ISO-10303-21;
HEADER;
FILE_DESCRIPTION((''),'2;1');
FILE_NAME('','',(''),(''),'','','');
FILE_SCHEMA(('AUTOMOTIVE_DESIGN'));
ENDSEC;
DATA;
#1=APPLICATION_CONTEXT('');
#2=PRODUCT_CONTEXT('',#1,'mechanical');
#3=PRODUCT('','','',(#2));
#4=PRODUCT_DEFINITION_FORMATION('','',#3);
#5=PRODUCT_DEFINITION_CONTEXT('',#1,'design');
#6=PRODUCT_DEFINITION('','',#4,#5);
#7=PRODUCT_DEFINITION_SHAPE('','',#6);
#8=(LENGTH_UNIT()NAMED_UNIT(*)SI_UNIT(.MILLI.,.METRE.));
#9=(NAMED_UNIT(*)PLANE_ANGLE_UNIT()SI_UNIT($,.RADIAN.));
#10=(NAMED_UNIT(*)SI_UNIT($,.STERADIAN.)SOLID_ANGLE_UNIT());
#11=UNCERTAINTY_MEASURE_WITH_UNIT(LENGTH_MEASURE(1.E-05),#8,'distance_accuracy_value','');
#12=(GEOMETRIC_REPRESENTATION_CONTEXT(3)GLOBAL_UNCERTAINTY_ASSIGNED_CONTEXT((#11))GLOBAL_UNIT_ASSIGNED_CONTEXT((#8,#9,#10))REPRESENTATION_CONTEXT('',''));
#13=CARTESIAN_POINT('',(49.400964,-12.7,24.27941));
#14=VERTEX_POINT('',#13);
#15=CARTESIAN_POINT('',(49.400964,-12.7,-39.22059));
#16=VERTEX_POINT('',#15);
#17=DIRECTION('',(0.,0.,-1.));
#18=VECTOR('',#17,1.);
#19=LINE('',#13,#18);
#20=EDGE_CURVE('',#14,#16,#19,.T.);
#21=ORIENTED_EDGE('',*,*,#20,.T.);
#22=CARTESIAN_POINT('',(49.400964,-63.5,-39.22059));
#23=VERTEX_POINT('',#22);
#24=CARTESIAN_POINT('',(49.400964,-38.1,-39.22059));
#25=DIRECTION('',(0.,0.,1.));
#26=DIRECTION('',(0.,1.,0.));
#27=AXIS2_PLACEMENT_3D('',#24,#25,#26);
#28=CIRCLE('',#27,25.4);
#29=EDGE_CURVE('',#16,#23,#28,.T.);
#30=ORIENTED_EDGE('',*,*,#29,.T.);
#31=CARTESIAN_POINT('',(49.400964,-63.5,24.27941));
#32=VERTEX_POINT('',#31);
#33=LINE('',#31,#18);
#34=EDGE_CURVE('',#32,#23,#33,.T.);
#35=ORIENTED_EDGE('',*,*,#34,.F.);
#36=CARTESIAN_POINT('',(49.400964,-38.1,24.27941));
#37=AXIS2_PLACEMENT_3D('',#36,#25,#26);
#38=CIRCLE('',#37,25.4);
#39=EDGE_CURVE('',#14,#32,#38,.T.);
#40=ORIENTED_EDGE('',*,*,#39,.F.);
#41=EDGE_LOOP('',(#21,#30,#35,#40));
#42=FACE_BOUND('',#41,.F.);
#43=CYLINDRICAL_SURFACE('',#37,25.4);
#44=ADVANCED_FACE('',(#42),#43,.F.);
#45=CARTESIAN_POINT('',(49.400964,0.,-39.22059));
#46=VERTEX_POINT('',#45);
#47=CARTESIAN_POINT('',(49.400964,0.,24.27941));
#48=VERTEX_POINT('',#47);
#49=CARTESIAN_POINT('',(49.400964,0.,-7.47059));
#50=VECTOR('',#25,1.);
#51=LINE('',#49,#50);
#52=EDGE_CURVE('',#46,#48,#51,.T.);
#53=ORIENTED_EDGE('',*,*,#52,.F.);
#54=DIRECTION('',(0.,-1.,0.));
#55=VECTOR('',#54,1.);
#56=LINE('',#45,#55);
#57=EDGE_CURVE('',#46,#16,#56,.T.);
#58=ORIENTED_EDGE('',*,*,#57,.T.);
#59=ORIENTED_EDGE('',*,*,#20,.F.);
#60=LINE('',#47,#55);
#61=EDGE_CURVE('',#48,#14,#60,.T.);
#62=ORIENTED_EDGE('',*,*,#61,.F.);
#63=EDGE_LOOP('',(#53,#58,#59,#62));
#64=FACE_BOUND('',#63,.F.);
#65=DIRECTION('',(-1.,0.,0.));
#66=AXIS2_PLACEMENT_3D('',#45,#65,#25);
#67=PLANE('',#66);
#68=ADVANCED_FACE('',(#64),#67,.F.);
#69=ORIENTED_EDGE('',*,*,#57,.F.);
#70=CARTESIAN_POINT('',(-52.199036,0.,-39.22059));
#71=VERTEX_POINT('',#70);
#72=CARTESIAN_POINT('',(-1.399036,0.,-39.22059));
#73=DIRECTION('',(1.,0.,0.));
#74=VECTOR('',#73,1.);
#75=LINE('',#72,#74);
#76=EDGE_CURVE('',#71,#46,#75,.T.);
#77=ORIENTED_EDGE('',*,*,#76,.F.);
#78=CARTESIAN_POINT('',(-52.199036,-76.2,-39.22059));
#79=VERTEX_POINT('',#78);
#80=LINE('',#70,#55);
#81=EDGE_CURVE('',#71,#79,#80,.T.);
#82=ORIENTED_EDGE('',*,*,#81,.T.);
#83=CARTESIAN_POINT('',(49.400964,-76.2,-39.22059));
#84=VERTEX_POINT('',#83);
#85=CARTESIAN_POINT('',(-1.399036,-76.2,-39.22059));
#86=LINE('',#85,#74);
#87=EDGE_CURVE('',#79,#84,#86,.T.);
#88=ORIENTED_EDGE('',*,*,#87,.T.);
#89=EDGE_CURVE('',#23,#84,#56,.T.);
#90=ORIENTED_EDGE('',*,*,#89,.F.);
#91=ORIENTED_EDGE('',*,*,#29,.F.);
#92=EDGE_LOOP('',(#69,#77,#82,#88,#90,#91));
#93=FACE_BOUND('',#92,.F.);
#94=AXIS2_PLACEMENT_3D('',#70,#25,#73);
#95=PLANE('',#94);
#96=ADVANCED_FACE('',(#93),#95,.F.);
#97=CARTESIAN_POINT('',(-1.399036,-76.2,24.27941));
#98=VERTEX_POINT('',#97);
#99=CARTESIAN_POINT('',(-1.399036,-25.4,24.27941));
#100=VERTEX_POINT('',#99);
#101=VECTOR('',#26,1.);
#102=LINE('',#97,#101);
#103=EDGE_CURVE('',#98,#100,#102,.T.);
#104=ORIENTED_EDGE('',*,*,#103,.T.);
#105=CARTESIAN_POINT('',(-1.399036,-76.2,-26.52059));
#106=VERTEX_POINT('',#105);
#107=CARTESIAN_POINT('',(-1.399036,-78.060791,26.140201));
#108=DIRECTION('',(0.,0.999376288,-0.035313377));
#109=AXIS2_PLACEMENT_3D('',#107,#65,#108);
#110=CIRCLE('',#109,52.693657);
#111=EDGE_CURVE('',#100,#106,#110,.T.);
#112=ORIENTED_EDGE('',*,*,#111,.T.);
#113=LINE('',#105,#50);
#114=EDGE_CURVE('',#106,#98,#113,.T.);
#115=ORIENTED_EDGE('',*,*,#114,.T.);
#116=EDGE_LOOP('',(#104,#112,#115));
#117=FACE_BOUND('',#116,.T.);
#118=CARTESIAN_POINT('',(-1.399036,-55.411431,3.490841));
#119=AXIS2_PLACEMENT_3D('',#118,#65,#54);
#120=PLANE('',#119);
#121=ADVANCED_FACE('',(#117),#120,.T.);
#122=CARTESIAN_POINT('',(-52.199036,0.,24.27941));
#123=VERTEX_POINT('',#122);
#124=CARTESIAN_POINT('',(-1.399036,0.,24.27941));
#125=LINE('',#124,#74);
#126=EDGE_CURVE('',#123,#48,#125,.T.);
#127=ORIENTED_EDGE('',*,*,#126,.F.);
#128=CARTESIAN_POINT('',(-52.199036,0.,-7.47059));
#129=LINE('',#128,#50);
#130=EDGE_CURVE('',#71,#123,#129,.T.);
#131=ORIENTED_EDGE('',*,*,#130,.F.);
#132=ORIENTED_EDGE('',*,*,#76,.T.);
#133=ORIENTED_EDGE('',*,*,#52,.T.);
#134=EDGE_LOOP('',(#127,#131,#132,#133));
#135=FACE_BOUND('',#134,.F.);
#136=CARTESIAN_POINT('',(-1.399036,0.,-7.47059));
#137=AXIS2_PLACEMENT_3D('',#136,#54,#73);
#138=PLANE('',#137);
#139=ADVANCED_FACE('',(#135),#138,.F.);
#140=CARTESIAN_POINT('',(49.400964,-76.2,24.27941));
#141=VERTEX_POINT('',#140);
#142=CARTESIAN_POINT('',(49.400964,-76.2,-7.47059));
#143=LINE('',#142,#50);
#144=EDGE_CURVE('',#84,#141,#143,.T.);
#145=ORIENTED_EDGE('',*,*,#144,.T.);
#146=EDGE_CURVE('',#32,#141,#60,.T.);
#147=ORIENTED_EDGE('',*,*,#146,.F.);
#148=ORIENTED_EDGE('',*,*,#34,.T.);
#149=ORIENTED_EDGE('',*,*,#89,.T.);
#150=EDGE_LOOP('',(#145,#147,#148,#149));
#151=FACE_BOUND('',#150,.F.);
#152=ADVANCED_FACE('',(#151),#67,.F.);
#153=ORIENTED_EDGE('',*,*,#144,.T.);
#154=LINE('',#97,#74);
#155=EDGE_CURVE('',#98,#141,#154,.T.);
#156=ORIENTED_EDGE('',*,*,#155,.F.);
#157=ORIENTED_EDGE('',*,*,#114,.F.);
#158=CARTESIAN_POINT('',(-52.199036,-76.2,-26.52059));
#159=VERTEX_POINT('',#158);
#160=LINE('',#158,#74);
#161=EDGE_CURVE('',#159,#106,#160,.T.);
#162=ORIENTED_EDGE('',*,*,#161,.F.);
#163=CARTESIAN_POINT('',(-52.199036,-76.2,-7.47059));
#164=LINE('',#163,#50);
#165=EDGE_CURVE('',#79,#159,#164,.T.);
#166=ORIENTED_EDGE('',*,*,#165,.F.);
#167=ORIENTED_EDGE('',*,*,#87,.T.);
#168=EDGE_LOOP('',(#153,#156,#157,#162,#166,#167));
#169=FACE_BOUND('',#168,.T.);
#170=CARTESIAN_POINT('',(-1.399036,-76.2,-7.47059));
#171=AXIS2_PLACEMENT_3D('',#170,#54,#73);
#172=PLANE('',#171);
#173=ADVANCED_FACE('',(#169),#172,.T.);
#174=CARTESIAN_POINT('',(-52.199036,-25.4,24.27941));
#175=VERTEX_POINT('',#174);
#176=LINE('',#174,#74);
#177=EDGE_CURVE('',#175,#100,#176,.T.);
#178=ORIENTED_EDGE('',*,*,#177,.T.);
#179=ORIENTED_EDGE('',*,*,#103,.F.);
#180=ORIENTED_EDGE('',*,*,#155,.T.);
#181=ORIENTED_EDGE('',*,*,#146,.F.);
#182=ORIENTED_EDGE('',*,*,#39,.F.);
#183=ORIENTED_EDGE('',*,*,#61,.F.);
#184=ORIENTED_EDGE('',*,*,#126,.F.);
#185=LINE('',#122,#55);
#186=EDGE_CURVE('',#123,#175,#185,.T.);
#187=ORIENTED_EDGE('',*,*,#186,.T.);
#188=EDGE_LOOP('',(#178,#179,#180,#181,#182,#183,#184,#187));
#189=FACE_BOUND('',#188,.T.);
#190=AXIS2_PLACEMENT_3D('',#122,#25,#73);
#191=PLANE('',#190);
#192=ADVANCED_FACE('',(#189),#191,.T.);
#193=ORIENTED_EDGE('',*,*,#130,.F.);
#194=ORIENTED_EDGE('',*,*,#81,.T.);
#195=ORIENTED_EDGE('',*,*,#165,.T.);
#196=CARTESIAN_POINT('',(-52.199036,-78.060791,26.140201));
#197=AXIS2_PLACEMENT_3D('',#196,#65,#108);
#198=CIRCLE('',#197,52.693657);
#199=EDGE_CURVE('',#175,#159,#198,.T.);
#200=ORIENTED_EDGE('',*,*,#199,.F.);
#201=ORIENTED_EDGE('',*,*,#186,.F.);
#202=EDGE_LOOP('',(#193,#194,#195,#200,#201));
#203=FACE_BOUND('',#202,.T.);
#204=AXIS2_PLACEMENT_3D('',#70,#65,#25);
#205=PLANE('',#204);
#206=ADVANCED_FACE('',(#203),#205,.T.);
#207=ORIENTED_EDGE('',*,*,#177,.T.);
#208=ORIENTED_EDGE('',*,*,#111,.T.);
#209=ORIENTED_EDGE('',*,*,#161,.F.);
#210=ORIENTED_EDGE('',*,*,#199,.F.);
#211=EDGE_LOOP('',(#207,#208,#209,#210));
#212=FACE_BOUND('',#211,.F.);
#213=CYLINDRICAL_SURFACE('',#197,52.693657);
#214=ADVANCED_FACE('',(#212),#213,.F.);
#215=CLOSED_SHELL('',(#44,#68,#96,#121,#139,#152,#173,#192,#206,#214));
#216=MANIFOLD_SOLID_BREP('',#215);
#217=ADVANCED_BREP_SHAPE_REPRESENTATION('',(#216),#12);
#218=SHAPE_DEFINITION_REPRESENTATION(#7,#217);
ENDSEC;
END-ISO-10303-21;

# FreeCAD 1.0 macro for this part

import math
import FreeCAD as App
import Part
import Sketcher
Q = App.Units.Quantity

doc = App.newDocument("Part")
body = doc.addObject("PartDesign::Body", "Body")

# Sketch on XZ plane
sketch1 = body.newObject("Sketcher::SketchObject", "Sketch")
sketch1.AttachmentSupport = (doc.getObject("XZ_Plane"), [""])
sketch1.MapMode = "FlatFace"
sketch1.addGeometry(Part.LineSegment(App.Vector(-52, 24, 0), App.Vector(-52, -39, 0)), False)
sketch1.addGeometry(Part.LineSegment(App.Vector(-52, -39, 0), App.Vector(49, -39, 0)), False)
sketch1.addGeometry(Part.LineSegment(App.Vector(49, -39, 0), App.Vector(49, 24, 0)), False)
sketch1.addGeometry(Part.LineSegment(App.Vector(49, 24, 0), App.Vector(-52, 24, 0)), False)
sketch1.addConstraint(Sketcher.Constraint("Coincident", 0, 2, 1, 1))
sketch1.addConstraint(Sketcher.Constraint("Coincident", 1, 2, 2, 1))
sketch1.addConstraint(Sketcher.Constraint("Coincident", 2, 2, 3, 1))
sketch1.addConstraint(Sketcher.Constraint("Coincident", 3, 2, 0, 1))
sketch1.addConstraint(Sketcher.Constraint("Vertical", 0))
sketch1.addConstraint(Sketcher.Constraint("Horizontal", 1))
sketch1.addConstraint(Sketcher.Constraint("Vertical", 2))
sketch1.addConstraint(Sketcher.Constraint("Horizontal", 3))
sketch1.addConstraint(Sketcher.Constraint("DistanceX", 1, 1, 1, 2, Q("4 in")))
sketch1.addConstraint(Sketcher.Constraint("DistanceY", 0, 2, 0, 1, Q("2.5 in")))
sketch1.addConstraint(Sketcher.Constraint("DistanceY", 0, 2, -1, 1, 39.22059))
sketch1.addConstraint(Sketcher.Constraint("DistanceX", 0, 2, -1, 1, 52.199036))
pad1 = body.newObject("PartDesign::Pad", "Pad")
pad1.Profile = sketch1
pad1.Length = Q("3 in")

# Sketch on XY plane
sketch2 = body.newObject("Sketcher::SketchObject", "Sketch001")
sketch2.AttachmentSupport = (doc.getObject("XY_Plane"), [""])
sketch2.MapMode = "FlatFace"
sketch2.AttachmentOffset = App.Placement(App.Vector(0, 0, 24.27941), App.Rotation())
sketch2.addGeometry(Part.LineSegment(App.Vector(49, -64, 0), App.Vector(49, -13, 0)), False)
sketch2.addGeometry(Part.ArcOfCircle(Part.Circle(App.Vector(49, -38, 0), App.Vector(0, 0, 1), 25), math.radians(90), math.radians(270)), False)
sketch2.addConstraint(Sketcher.Constraint("Coincident", 0, 1, 1, 2))
sketch2.addConstraint(Sketcher.Constraint("Coincident", 1, 1, 0, 2))
sketch2.addConstraint(Sketcher.Constraint("Vertical", 0))
sketch2.addConstraint(Sketcher.Constraint("Vertical", 1, 3, 0, 1))
sketch2.addConstraint(Sketcher.Constraint("Radius", 1, Q("1 in")))
sketch2.addConstraint(Sketcher.Constraint("DistanceY", 1, 3, -1, 1, Q("1.5 in")))
sketch2.addConstraint(Sketcher.Constraint("DistanceX", -1, 1, 1, 3, 49.400964))
pocket1 = body.newObject("PartDesign::Pocket", "Pocket")
pocket1.Profile = sketch2
pocket1.Length = Q("2.5 in")

# Sketch on YZ plane
sketch3 = body.newObject("Sketcher::SketchObject", "Sketch002")
sketch3.AttachmentSupport = (doc.getObject("YZ_Plane"), [""])
sketch3.MapMode = "FlatFace"
sketch3.AttachmentOffset = App.Placement(App.Vector(0, 0, -52.199036), App.Rotation())
sketch3.addGeometry(Part.LineSegment(App.Vector(-76, 24, 0), App.Vector(-25, 24, 0)), False)
sketch3.addGeometry(Part.ArcOfCircle(Part.Circle(App.Vector(-78, 26, 0), App.Vector(0, 0, 1), 53), math.radians(-88), math.radians(-2)), False)
sketch3.addGeometry(Part.LineSegment(App.Vector(-76, -27, 0), App.Vector(-76, 24, 0)), False)
sketch3.addConstraint(Sketcher.Constraint("Coincident", 0, 2, 1, 2))
sketch3.addConstraint(Sketcher.Constraint("Coincident", 1, 1, 2, 1))
sketch3.addConstraint(Sketcher.Constraint("Coincident", 2, 2, 0, 1))
sketch3.addConstraint(Sketcher.Constraint("Horizontal", 0))
sketch3.addConstraint(Sketcher.Constraint("Vertical", 2))
sketch3.addConstraint(Sketcher.Constraint("Equal", 0, 2))
sketch3.addConstraint(Sketcher.Constraint("DistanceX", 0, 1, 0, 2, Q("2 in")))
sketch3.addConstraint(Sketcher.Constraint("DistanceX", 0, 2, -1, 1, Q("1 in")))
sketch3.addConstraint(Sketcher.Constraint("Radius", 1, 52.693657))
sketch3.addConstraint(Sketcher.Constraint("DistanceY", -1, 1, 1, 3, 26.140201))
pocket2 = body.newObject("PartDesign::Pocket", "Pocket001")
pocket2.Profile = sketch3
pocket2.Length = Q("2 in")
pocket2.Reversed = True

doc.recompute()
